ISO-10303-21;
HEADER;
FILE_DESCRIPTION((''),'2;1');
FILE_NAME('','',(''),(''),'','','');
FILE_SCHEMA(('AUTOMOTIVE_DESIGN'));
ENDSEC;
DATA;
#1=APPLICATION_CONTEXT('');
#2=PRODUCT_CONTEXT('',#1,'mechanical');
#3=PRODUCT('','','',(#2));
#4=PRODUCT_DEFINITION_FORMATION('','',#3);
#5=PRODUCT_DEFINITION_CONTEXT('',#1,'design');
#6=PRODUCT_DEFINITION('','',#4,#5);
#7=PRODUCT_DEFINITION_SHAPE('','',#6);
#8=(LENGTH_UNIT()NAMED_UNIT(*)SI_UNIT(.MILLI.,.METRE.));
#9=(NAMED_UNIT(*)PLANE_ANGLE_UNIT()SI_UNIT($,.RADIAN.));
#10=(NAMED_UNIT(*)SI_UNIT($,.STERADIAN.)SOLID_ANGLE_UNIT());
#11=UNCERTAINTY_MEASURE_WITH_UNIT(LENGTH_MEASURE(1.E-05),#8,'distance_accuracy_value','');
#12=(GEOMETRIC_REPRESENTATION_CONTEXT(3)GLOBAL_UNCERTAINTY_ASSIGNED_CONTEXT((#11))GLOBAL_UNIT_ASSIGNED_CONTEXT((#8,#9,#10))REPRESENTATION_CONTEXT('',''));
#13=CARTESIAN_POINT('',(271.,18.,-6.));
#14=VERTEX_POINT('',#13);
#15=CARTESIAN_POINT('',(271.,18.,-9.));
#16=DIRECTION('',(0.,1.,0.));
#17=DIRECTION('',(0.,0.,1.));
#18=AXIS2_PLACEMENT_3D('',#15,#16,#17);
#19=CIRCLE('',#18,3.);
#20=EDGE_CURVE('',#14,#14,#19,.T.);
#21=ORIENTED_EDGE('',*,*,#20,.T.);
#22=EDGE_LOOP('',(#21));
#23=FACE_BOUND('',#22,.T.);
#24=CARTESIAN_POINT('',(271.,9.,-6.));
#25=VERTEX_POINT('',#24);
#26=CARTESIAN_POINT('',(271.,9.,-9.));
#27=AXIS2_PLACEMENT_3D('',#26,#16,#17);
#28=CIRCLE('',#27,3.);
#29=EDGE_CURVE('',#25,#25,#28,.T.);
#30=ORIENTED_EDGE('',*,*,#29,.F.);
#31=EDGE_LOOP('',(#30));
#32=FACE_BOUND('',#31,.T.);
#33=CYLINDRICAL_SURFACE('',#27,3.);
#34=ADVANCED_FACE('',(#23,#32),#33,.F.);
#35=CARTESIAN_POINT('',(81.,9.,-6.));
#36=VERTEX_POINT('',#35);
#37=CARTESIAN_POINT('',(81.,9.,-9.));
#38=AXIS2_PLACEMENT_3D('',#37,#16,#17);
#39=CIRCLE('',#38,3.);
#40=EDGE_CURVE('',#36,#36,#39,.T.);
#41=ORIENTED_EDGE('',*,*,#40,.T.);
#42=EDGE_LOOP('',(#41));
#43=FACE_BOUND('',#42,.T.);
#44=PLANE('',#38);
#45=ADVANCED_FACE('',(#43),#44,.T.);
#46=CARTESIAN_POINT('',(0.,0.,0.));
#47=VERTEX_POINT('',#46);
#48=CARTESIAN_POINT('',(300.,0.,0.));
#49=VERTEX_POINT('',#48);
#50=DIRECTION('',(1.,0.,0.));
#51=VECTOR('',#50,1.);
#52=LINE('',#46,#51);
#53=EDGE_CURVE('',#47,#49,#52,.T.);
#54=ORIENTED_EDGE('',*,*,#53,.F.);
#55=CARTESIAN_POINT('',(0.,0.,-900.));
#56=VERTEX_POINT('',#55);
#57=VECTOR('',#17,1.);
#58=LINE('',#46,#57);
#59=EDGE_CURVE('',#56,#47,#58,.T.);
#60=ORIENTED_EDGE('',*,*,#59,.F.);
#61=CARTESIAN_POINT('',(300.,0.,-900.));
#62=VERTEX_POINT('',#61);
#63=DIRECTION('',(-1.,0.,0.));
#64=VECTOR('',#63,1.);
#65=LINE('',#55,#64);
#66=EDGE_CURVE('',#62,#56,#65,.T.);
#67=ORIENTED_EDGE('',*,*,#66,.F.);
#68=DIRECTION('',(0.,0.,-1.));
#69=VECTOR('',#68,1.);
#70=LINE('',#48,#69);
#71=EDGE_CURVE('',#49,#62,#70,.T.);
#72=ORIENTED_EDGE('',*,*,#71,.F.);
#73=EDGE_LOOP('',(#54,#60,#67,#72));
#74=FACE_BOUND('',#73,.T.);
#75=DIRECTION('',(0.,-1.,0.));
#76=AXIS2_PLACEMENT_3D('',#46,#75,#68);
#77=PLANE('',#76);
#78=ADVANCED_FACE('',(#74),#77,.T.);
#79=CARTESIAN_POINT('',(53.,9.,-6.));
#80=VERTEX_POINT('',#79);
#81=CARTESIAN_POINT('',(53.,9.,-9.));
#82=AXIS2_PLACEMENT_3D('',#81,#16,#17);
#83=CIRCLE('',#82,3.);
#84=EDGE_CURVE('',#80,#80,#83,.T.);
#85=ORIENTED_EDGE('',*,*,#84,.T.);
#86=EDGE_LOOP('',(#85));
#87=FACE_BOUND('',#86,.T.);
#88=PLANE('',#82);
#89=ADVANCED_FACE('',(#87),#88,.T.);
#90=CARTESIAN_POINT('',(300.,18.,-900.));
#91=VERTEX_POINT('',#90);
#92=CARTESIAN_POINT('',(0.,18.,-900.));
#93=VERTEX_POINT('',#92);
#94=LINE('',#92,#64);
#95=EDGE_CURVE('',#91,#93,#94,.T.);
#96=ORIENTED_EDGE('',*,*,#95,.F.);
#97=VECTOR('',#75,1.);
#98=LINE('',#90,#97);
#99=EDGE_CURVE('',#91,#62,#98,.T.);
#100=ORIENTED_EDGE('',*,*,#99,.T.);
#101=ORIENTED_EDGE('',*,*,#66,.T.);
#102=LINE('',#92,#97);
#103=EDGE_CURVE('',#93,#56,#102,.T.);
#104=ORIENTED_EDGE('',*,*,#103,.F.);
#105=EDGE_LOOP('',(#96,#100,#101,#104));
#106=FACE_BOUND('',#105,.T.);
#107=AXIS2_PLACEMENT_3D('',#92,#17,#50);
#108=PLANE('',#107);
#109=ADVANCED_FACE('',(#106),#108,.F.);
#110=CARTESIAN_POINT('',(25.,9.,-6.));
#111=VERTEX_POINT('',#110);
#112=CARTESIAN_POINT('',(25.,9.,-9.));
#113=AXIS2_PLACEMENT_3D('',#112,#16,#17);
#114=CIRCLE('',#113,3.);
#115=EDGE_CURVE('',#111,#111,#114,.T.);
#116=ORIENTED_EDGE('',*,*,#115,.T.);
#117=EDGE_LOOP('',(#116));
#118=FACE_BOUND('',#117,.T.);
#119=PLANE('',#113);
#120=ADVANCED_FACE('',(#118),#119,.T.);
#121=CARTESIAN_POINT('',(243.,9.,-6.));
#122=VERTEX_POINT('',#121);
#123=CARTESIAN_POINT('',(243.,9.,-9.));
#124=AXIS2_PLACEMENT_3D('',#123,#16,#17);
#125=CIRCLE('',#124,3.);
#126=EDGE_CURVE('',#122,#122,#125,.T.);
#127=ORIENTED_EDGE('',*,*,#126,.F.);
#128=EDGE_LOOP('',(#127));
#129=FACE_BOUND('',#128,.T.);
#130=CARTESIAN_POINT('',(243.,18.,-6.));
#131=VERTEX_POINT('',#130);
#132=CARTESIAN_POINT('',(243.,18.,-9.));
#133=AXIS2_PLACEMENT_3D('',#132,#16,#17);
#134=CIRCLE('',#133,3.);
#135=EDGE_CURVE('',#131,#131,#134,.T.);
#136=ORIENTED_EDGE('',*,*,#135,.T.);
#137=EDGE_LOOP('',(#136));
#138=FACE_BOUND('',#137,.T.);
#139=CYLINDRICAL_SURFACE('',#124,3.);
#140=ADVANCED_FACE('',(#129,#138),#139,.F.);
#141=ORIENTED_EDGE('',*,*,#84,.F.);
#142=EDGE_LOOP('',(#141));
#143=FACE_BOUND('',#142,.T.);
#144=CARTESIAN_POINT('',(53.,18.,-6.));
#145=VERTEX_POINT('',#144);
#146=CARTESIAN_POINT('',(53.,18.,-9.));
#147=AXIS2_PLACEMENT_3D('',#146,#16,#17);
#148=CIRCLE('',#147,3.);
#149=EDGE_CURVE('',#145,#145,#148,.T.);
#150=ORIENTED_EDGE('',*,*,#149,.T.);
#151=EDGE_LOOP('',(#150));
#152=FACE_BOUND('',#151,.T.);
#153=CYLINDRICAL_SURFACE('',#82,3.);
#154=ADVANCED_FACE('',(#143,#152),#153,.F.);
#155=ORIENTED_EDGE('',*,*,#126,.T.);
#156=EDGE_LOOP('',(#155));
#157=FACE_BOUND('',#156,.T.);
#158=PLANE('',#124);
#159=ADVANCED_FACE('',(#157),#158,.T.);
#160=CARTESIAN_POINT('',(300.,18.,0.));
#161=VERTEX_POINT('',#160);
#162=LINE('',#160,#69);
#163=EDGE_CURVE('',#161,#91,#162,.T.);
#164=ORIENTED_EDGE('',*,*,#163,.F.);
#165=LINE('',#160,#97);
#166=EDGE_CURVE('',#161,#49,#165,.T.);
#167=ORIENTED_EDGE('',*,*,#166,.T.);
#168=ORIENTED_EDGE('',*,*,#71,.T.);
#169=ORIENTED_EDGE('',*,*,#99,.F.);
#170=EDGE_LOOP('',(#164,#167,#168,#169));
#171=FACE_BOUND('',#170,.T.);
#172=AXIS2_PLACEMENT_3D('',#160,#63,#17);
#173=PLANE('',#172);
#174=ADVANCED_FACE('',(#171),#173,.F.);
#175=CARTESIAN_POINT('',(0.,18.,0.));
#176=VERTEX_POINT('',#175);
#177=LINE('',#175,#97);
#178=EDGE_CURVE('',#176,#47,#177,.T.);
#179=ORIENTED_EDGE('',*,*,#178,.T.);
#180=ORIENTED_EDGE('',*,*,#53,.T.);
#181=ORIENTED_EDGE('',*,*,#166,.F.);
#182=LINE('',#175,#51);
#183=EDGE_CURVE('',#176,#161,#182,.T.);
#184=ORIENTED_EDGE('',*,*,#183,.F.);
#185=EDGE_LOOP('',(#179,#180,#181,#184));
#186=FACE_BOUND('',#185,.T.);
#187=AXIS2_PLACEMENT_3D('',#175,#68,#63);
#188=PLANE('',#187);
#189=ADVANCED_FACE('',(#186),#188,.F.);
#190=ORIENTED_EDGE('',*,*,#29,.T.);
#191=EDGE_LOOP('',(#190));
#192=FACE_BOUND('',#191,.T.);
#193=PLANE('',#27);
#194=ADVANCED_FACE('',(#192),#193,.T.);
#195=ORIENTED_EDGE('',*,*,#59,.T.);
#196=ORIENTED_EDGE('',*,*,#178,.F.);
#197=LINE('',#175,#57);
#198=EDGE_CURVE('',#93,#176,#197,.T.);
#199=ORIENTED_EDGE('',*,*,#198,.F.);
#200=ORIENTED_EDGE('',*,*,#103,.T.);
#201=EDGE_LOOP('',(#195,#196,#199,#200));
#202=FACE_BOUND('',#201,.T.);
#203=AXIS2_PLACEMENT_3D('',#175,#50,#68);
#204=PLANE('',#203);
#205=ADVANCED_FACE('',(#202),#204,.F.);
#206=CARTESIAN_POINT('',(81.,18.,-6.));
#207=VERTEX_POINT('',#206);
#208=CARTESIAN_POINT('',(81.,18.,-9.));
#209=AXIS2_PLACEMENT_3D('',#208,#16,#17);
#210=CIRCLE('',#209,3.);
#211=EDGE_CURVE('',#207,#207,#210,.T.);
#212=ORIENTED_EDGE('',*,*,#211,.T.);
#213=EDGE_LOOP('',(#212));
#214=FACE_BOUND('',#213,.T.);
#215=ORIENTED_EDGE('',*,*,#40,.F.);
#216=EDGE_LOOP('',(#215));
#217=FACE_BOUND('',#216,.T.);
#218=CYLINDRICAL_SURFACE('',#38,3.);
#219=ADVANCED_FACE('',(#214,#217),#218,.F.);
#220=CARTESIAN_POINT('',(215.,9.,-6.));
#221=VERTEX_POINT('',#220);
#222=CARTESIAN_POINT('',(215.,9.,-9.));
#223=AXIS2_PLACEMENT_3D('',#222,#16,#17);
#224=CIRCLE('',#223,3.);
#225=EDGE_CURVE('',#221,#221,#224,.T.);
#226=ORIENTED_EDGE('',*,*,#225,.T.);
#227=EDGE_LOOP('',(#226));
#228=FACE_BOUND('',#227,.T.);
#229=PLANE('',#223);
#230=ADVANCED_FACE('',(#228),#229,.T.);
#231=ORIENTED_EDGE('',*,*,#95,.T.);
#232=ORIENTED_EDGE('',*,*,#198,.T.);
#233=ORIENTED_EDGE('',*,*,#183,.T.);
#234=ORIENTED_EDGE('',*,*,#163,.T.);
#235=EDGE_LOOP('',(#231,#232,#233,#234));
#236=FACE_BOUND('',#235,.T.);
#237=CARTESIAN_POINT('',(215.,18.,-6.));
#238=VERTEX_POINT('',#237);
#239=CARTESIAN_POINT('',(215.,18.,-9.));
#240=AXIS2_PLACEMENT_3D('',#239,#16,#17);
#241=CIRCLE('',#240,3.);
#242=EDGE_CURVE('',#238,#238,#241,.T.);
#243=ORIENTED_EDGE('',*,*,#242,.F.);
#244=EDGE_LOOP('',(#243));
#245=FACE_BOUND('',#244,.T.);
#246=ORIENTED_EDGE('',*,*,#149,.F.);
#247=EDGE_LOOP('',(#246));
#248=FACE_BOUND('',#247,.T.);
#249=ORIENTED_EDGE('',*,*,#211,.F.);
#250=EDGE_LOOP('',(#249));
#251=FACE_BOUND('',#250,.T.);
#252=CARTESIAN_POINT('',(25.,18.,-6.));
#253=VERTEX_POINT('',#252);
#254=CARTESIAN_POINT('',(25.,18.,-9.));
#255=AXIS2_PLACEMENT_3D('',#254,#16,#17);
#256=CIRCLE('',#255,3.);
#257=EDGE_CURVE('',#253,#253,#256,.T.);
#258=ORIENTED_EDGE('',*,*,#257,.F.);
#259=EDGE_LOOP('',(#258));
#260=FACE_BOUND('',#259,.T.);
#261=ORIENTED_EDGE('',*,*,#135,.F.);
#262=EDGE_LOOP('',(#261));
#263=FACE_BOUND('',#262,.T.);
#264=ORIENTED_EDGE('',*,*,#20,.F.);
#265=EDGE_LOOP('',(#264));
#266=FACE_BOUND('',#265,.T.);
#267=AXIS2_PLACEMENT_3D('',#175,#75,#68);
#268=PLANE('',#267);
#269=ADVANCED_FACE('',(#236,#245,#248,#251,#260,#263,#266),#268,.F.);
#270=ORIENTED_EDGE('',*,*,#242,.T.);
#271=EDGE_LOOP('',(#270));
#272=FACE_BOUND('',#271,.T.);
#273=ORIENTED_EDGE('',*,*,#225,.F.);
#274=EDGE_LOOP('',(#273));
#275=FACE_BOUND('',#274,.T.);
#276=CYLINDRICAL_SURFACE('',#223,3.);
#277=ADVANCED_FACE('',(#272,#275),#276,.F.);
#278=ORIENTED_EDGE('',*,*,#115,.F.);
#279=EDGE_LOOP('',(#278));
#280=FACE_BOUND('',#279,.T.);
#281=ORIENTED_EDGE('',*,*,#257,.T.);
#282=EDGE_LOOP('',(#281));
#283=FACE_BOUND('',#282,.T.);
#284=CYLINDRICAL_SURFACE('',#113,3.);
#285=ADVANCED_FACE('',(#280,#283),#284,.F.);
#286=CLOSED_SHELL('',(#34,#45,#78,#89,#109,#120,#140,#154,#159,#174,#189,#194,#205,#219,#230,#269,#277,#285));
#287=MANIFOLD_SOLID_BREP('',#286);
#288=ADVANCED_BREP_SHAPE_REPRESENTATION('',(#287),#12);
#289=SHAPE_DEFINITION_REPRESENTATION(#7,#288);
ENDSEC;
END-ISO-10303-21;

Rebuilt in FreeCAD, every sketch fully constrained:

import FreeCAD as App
import Part
import Sketcher

V = App.Vector

doc = App.newDocument("Part")
body = doc.addObject("PartDesign::Body", "Body")

# Sketch on XZ plane
sketch1 = doc.addObject("Sketcher::SketchObject", "Sketch")
body.addObject(sketch1)
sketch1.AttachmentSupport = (doc.XZ_Plane, [""])
sketch1.MapMode = "FlatFace"
sketch1.addGeometry(Part.LineSegment(V(0, -900, 0), V(0, 0, 0)), False)
sketch1.addGeometry(Part.LineSegment(V(0, 0, 0), V(300, 0, 0)), False)
sketch1.addGeometry(Part.LineSegment(V(300, 0, 0), V(300, -900, 0)), False)
sketch1.addGeometry(Part.LineSegment(V(300, -900, 0), V(0, -900, 0)), False)
sketch1.addConstraint(Sketcher.Constraint("Coincident", 0, 2, 1, 1))
sketch1.addConstraint(Sketcher.Constraint("Coincident", 1, 2, 2, 1))
sketch1.addConstraint(Sketcher.Constraint("Coincident", 2, 2, 3, 1))
sketch1.addConstraint(Sketcher.Constraint("Coincident", 3, 2, 0, 1))
sketch1.addConstraint(Sketcher.Constraint("Vertical", 0))
sketch1.addConstraint(Sketcher.Constraint("Horizontal", 1))
sketch1.addConstraint(Sketcher.Constraint("Vertical", 2))
sketch1.addConstraint(Sketcher.Constraint("Horizontal", 3))
sketch1.addConstraint(Sketcher.Constraint("Coincident", 0, 2, -1, 1))
sketch1.addConstraint(Sketcher.Constraint("DistanceX", 1, 1, 1, 2, 300.0))
sketch1.addConstraint(Sketcher.Constraint("DistanceY", 0, 1, 0, 2, 900.0))
pad1 = doc.addObject("PartDesign::Pad", "Pad")
body.addObject(pad1)
pad1.Profile = sketch1
pad1.Length = 18
pad1.Reversed = True

# Sketch on XZ plane
sketch2 = doc.addObject("Sketcher::SketchObject", "Sketch001")
body.addObject(sketch2)
sketch2.AttachmentSupport = (doc.XZ_Plane, [""])
sketch2.MapMode = "FlatFace"
sketch2.AttachmentOffset = App.Placement(V(0, 0, -18), App.Rotation())
sketch2.addGeometry(Part.Circle(V(25, -9, 0), V(0, 0, 1), 3), False)
sketch2.addGeometry(Part.Circle(V(53, -9, 0), V(0, 0, 1), 3), False)
sketch2.addGeometry(Part.Circle(V(81, -9, 0), V(0, 0, 1), 3), False)
sketch2.addGeometry(Part.Circle(V(215, -9, 0), V(0, 0, 1), 3), False)
sketch2.addGeometry(Part.Circle(V(243, -9, 0), V(0, 0, 1), 3), False)
sketch2.addGeometry(Part.Circle(V(271, -9, 0), V(0, 0, 1), 3), False)
sketch2.addConstraint(Sketcher.Constraint("Equal", 0, 1))
sketch2.addConstraint(Sketcher.Constraint("Equal", 1, 2))
sketch2.addConstraint(Sketcher.Constraint("Equal", 2, 3))
sketch2.addConstraint(Sketcher.Constraint("Equal", 3, 4))
sketch2.addConstraint(Sketcher.Constraint("Equal", 4, 5))
sketch2.addConstraint(Sketcher.Constraint("Horizontal", 0, 3, 1, 3))
sketch2.addConstraint(Sketcher.Constraint("Horizontal", 1, 3, 2, 3))
sketch2.addConstraint(Sketcher.Constraint("Horizontal", 2, 3, 3, 3))
sketch2.addConstraint(Sketcher.Constraint("Horizontal", 3, 3, 4, 3))
sketch2.addConstraint(Sketcher.Constraint("Horizontal", 4, 3, 5, 3))
sketch2.addConstraint(Sketcher.Constraint("Diameter", 0, 6.0))
sketch2.addConstraint(Sketcher.Constraint("DistanceX", -1, 1, 0, 3, 25.0))
sketch2.addConstraint(Sketcher.Constraint("DistanceY", 0, 3, -1, 1, 9.0))
sketch2.addConstraint(Sketcher.Constraint("DistanceX", -1, 1, 1, 3, 53.0))
sketch2.addConstraint(Sketcher.Constraint("DistanceX", -1, 1, 2, 3, 81.0))
sketch2.addConstraint(Sketcher.Constraint("DistanceX", -1, 1, 3, 3, 215.0))
sketch2.addConstraint(Sketcher.Constraint("DistanceX", -1, 1, 4, 3, 243.0))
sketch2.addConstraint(Sketcher.Constraint("DistanceX", -1, 1, 5, 3, 271.0))
pocket1 = doc.addObject("PartDesign::Pocket", "Pocket")
body.addObject(pocket1)
pocket1.Profile = sketch2
pocket1.Length = 9
pocket1.Reversed = True

doc.recompute()
